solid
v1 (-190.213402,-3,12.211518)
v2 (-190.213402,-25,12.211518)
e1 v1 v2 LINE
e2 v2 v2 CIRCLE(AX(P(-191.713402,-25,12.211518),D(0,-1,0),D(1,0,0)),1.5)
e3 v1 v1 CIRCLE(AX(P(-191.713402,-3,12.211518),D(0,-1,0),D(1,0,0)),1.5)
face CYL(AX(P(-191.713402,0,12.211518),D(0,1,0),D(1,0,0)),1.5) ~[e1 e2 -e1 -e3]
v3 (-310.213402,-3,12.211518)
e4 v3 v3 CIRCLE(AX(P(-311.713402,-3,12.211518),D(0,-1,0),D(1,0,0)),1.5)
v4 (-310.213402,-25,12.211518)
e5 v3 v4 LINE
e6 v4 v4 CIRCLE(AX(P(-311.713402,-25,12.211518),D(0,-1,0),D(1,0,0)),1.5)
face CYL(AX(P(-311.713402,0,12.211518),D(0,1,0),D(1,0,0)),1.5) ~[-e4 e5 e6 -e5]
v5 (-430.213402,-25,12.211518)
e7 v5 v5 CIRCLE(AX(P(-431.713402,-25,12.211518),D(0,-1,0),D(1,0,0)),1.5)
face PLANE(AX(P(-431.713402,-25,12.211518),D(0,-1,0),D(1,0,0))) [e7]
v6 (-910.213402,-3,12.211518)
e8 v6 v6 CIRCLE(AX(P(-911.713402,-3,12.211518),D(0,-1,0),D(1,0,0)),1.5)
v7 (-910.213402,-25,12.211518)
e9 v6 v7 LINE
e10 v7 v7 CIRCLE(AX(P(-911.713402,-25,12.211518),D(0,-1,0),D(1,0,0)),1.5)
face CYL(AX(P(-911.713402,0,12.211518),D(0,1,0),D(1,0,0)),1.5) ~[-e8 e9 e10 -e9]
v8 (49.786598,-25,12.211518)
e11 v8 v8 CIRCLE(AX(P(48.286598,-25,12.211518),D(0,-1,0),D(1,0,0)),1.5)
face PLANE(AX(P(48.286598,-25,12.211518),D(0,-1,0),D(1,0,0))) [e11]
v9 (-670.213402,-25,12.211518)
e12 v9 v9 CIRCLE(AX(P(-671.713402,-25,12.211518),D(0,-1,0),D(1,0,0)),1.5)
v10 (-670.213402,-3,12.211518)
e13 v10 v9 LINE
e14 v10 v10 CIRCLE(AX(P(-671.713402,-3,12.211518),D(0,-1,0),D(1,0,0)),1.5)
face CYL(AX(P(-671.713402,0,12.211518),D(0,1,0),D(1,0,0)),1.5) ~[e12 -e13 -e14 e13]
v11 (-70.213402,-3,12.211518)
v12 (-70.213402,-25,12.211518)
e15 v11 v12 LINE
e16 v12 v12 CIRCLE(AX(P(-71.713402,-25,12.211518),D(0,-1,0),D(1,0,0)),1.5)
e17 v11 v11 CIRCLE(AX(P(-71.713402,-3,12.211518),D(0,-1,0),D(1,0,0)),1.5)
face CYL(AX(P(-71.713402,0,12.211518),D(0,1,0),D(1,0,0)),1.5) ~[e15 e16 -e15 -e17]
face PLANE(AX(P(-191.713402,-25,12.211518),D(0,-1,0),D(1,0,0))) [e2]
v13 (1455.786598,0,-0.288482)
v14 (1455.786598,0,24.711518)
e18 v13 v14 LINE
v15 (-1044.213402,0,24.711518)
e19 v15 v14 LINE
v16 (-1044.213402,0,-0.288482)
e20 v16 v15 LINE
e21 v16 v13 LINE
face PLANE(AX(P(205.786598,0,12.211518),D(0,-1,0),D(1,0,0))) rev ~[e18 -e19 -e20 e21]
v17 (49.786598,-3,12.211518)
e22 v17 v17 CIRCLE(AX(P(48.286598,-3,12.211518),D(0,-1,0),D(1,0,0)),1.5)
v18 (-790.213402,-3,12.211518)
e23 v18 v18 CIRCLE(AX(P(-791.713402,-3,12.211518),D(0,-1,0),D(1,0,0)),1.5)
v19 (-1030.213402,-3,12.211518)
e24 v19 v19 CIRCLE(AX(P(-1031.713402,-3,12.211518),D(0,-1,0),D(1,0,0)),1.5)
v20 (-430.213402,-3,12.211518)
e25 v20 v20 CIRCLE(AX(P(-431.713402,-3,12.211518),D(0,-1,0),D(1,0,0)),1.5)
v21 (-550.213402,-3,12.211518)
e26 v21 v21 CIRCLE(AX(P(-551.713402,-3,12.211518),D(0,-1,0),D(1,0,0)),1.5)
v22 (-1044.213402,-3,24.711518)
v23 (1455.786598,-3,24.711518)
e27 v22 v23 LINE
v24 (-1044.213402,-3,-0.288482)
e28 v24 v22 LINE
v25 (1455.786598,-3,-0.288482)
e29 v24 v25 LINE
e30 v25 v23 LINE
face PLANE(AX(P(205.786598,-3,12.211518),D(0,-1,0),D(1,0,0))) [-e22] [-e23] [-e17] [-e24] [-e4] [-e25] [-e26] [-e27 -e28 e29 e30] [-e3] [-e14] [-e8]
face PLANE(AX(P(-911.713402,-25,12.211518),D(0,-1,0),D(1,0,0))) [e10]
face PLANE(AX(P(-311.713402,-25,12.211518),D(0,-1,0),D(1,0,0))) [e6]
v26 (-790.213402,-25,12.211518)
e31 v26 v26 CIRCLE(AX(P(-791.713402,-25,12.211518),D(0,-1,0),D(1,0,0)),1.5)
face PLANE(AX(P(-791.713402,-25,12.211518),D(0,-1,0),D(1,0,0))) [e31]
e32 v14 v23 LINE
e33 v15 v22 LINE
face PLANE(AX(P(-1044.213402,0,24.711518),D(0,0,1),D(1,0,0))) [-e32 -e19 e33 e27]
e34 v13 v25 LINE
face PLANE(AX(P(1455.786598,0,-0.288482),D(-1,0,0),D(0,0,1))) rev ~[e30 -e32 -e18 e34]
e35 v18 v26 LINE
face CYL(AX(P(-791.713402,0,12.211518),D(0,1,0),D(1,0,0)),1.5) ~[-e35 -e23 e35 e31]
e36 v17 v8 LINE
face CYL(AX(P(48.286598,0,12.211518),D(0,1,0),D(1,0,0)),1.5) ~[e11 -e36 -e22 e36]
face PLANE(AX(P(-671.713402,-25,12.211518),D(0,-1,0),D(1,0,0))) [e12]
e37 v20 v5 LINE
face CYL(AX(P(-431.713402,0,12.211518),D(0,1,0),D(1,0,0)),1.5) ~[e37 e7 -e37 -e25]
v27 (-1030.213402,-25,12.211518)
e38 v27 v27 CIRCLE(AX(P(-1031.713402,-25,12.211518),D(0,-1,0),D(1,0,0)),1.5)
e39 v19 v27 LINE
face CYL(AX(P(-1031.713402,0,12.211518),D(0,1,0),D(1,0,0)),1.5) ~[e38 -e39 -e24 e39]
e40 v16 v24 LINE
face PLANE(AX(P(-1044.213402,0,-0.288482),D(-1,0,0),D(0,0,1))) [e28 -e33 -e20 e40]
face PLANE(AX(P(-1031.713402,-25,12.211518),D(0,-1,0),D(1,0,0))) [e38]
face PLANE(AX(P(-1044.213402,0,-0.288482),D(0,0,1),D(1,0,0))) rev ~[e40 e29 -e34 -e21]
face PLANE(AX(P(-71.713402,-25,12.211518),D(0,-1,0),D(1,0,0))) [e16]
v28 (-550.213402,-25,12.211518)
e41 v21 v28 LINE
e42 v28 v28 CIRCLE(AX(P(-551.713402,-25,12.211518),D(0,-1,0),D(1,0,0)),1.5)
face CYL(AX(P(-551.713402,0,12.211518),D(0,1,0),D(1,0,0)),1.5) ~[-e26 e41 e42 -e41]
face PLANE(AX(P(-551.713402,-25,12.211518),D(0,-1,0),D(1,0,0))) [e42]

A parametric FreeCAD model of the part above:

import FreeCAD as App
import Part
import Sketcher
Q = App.Units.Quantity

doc = App.newDocument("Part")
params = doc.addObject("Spreadsheet::Sheet", "Params")
for row, (alias, value) in enumerate([
    ("sketch1_diameter", "3 mm"),
    ("sketch1_width", "2500 mm"),
    ("sketch1_height", "25 mm"),
    ("pad1_length", "3 mm"),
    ("sketch2_diameter", "3 mm"),
    ("pad2_length", "25 mm"),
], start=1):
    params.set(f"A{row}", alias)
    params.set(f"B{row}", "=" + value)
    params.setAlias(f"B{row}", alias)

body = doc.addObject("PartDesign::Body", "Body")

sketch1 = body.newObject("Sketcher::SketchObject", "Sketch")
sketch1.AttachmentSupport = (doc.getObject("XZ_Plane"), [""])
sketch1.MapMode = "FlatFace"
sketch1.addGeometry(Part.LineSegment(App.Vector(-1044.2, 24.7, 0), App.Vector(-1044.2, -0.3, 0)), False)
sketch1.addGeometry(Part.LineSegment(App.Vector(-1044.2, -0.3, 0), App.Vector(1455.8, -0.3, 0)), False)
sketch1.addGeometry(Part.LineSegment(App.Vector(1455.8, -0.3, 0), App.Vector(1455.8, 24.7, 0)), False)
sketch1.addGeometry(Part.LineSegment(App.Vector(1455.8, 24.7, 0), App.Vector(-1044.2, 24.7, 0)), False)
sketch1.addGeometry(Part.Circle(App.Vector(-1031.7, 12.2, 0), App.Vector(0, 0, 1), 1.5), False)
sketch1.addGeometry(Part.Circle(App.Vector(-911.7, 12.2, 0), App.Vector(0, 0, 1), 1.5), False)
sketch1.addGeometry(Part.Circle(App.Vector(-791.7, 12.2, 0), App.Vector(0, 0, 1), 1.5), False)
sketch1.addGeometry(Part.Circle(App.Vector(-671.7, 12.2, 0), App.Vector(0, 0, 1), 1.5), False)
sketch1.addGeometry(Part.Circle(App.Vector(-551.7, 12.2, 0), App.Vector(0, 0, 1), 1.5), False)
sketch1.addGeometry(Part.Circle(App.Vector(-431.7, 12.2, 0), App.Vector(0, 0, 1), 1.5), False)
sketch1.addGeometry(Part.Circle(App.Vector(-311.7, 12.2, 0), App.Vector(0, 0, 1), 1.5), False)
sketch1.addGeometry(Part.Circle(App.Vector(-191.7, 12.2, 0), App.Vector(0, 0, 1), 1.5), False)
sketch1.addGeometry(Part.Circle(App.Vector(-71.7, 12.2, 0), App.Vector(0, 0, 1), 1.5), False)
sketch1.addGeometry(Part.Circle(App.Vector(48.3, 12.2, 0), App.Vector(0, 0, 1), 1.5), False)
sketch1.addConstraint(Sketcher.Constraint("Coincident", 0, 2, 1, 1))
sketch1.addConstraint(Sketcher.Constraint("Coincident", 1, 2, 2, 1))
sketch1.addConstraint(Sketcher.Constraint("Coincident", 2, 2, 3, 1))
sketch1.addConstraint(Sketcher.Constraint("Coincident", 3, 2, 0, 1))
sketch1.addConstraint(Sketcher.Constraint("Vertical", 0))
sketch1.addConstraint(Sketcher.Constraint("Horizontal", 1))
sketch1.addConstraint(Sketcher.Constraint("Vertical", 2))
sketch1.addConstraint(Sketcher.Constraint("Horizontal", 3))
sketch1.addConstraint(Sketcher.Constraint("Equal", 4, 5))
sketch1.addConstraint(Sketcher.Constraint("Equal", 5, 6))
sketch1.addConstraint(Sketcher.Constraint("Equal", 6, 7))
sketch1.addConstraint(Sketcher.Constraint("Equal", 7, 8))
sketch1.addConstraint(Sketcher.Constraint("Equal", 8, 9))
sketch1.addConstraint(Sketcher.Constraint("Equal", 9, 10))
sketch1.addConstraint(Sketcher.Constraint("Equal", 10, 11))
sketch1.addConstraint(Sketcher.Constraint("Equal", 11, 12))
sketch1.addConstraint(Sketcher.Constraint("Equal", 12, 13))
sketch1.addConstraint(Sketcher.Constraint("Horizontal", 4, 3, 5, 3))
sketch1.addConstraint(Sketcher.Constraint("Horizontal", 5, 3, 6, 3))
sketch1.addConstraint(Sketcher.Constraint("Horizontal", 6, 3, 7, 3))
sketch1.addConstraint(Sketcher.Constraint("Horizontal", 7, 3, 8, 3))
sketch1.addConstraint(Sketcher.Constraint("Horizontal", 8, 3, 9, 3))
sketch1.addConstraint(Sketcher.Constraint("Horizontal", 9, 3, 10, 3))
sketch1.addConstraint(Sketcher.Constraint("Horizontal", 10, 3, 11, 3))
sketch1.addConstraint(Sketcher.Constraint("Horizontal", 11, 3, 12, 3))
sketch1.addConstraint(Sketcher.Constraint("Horizontal", 12, 3, 13, 3))
sketch1.addConstraint(Sketcher.Constraint("Diameter", 4, Q("3 mm")))
sketch1.addConstraint(Sketcher.Constraint("DistanceX", 1, 1, 1, 2, Q("2500 mm")))
sketch1.addConstraint(Sketcher.Constraint("DistanceY", 0, 2, 0, 1, Q("25 mm")))
sketch1.addConstraint(Sketcher.Constraint("DistanceX", 4, 3, 5, 3, Q("120 mm")))
sketch1.addConstraint(Sketcher.Constraint("DistanceX", 5, 3, 6, 3, Q("120 mm")))
sketch1.addConstraint(Sketcher.Constraint("DistanceX", 6, 3, 7, 3, Q("120 mm")))
sketch1.addConstraint(Sketcher.Constraint("DistanceX", 7, 3, 8, 3, Q("120 mm")))
sketch1.addConstraint(Sketcher.Constraint("DistanceX", 8, 3, 9, 3, Q("120 mm")))
sketch1.addConstraint(Sketcher.Constraint("DistanceX", 9, 3, 10, 3, Q("120 mm")))
sketch1.addConstraint(Sketcher.Constraint("DistanceX", 10, 3, 11, 3, Q("120 mm")))
sketch1.addConstraint(Sketcher.Constraint("DistanceX", 11, 3, 12, 3, Q("120 mm")))
sketch1.addConstraint(Sketcher.Constraint("DistanceX", 12, 3, 13, 3, Q("120 mm")))
sketch1.addConstraint(Sketcher.Constraint("DistanceX", 0, 2, 4, 3, Q("12.5 mm")))
sketch1.addConstraint(Sketcher.Constraint("DistanceY", 0, 2, 4, 3, Q("12.5 mm")))
sketch1.addConstraint(Sketcher.Constraint("DistanceX", 4, 3, -1, 1, Q("1031.713402 mm")))
sketch1.addConstraint(Sketcher.Constraint("DistanceY", -1, 1, 2, 2, Q("24.711518 mm")))
sketch1.setExpression("Constraints[26]", "Params.sketch1_diameter")
sketch1.setExpression("Constraints[27]", "Params.sketch1_width")
sketch1.setExpression("Constraints[28]", "Params.sketch1_height")
pad1 = body.newObject("PartDesign::Pad", "Pad")
pad1.Profile = sketch1
pad1.setExpression("Length", "Params.pad1_length")

sketch2 = body.newObject("Sketcher::SketchObject", "Sketch001")
sketch2.AttachmentSupport = (doc.getObject("XZ_Plane"), [""])
sketch2.MapMode = "FlatFace"
sketch2.addGeometry(Part.Circle(App.Vector(-1031.7, 12.2, 0), App.Vector(0, 0, 1), 1.5), False)
sketch2.addGeometry(Part.Circle(App.Vector(-911.7, 12.2, 0), App.Vector(0, 0, 1), 1.5), False)
sketch2.addGeometry(Part.Circle(App.Vector(-791.7, 12.2, 0), App.Vector(0, 0, 1), 1.5), False)
sketch2.addGeometry(Part.Circle(App.Vector(-671.7, 12.2, 0), App.Vector(0, 0, 1), 1.5), False)
sketch2.addGeometry(Part.Circle(App.Vector(-551.7, 12.2, 0), App.Vector(0, 0, 1), 1.5), False)
sketch2.addGeometry(Part.Circle(App.Vector(-431.7, 12.2, 0), App.Vector(0, 0, 1), 1.5), False)
sketch2.addGeometry(Part.Circle(App.Vector(-311.7, 12.2, 0), App.Vector(0, 0, 1), 1.5), False)
sketch2.addGeometry(Part.Circle(App.Vector(-191.7, 12.2, 0), App.Vector(0, 0, 1), 1.5), False)
sketch2.addGeometry(Part.Circle(App.Vector(-71.7, 12.2, 0), App.Vector(0, 0, 1), 1.5), False)
sketch2.addGeometry(Part.Circle(App.Vector(48.3, 12.2, 0), App.Vector(0, 0, 1), 1.5), False)
sketch2.addConstraint(Sketcher.Constraint("Equal", 0, 1))
sketch2.addConstraint(Sketcher.Constraint("Equal", 1, 2))
sketch2.addConstraint(Sketcher.Constraint("Equal", 2, 3))
sketch2.addConstraint(Sketcher.Constraint("Equal", 3, 4))
sketch2.addConstraint(Sketcher.Constraint("Equal", 4, 5))
sketch2.addConstraint(Sketcher.Constraint("Equal", 5, 6))
sketch2.addConstraint(Sketcher.Constraint("Equal", 6, 7))
sketch2.addConstraint(Sketcher.Constraint("Equal", 7, 8))
sketch2.addConstraint(Sketcher.Constraint("Equal", 8, 9))
sketch2.addConstraint(Sketcher.Constraint("Horizontal", 0, 3, 1, 3))
sketch2.addConstraint(Sketcher.Constraint("Horizontal", 1, 3, 2, 3))
sketch2.addConstraint(Sketcher.Constraint("Horizontal", 2, 3, 3, 3))
sketch2.addConstraint(Sketcher.Constraint("Horizontal", 3, 3, 4, 3))
sketch2.addConstraint(Sketcher.Constraint("Horizontal", 4, 3, 5, 3))
sketch2.addConstraint(Sketcher.Constraint("Horizontal", 5, 3, 6, 3))
sketch2.addConstraint(Sketcher.Constraint("Horizontal", 6, 3, 7, 3))
sketch2.addConstraint(Sketcher.Constraint("Horizontal", 7, 3, 8, 3))
sketch2.addConstraint(Sketcher.Constraint("Horizontal", 8, 3, 9, 3))
sketch2.addConstraint(Sketcher.Constraint("Diameter", 0, Q("3 mm")))
sketch2.addConstraint(Sketcher.Constraint("DistanceX", 0, 3, 1, 3, Q("120 mm")))
sketch2.addConstraint(Sketcher.Constraint("DistanceX", 1, 3, 2, 3, Q("120 mm")))
sketch2.addConstraint(Sketcher.Constraint("DistanceX", 2, 3, 3, 3, Q("120 mm")))
sketch2.addConstraint(Sketcher.Constraint("DistanceX", 3, 3, 4, 3, Q("120 mm")))
sketch2.addConstraint(Sketcher.Constraint("DistanceX", 4, 3, 5, 3, Q("120 mm")))
sketch2.addConstraint(Sketcher.Constraint("DistanceX", 5, 3, 6, 3, Q("120 mm")))
sketch2.addConstraint(Sketcher.Constraint("DistanceX", 6, 3, 7, 3, Q("120 mm")))
sketch2.addConstraint(Sketcher.Constraint("DistanceX", 7, 3, 8, 3, Q("120 mm")))
sketch2.addConstraint(Sketcher.Constraint("DistanceX", 8, 3, 9, 3, Q("120 mm")))
sketch2.addConstraint(Sketcher.Constraint("DistanceX", 0, 3, -1, 1, Q("1031.713402 mm")))
sketch2.addConstraint(Sketcher.Constraint("DistanceY", -1, 1, 0, 3, Q("12.211518 mm")))
sketch2.setExpression("Constraints[18]", "Params.sketch2_diameter")
pad2 = body.newObject("PartDesign::Pad", "Pad001")
pad2.Profile = sketch2
pad2.setExpression("Length", "Params.pad2_length")

doc.recompute()
